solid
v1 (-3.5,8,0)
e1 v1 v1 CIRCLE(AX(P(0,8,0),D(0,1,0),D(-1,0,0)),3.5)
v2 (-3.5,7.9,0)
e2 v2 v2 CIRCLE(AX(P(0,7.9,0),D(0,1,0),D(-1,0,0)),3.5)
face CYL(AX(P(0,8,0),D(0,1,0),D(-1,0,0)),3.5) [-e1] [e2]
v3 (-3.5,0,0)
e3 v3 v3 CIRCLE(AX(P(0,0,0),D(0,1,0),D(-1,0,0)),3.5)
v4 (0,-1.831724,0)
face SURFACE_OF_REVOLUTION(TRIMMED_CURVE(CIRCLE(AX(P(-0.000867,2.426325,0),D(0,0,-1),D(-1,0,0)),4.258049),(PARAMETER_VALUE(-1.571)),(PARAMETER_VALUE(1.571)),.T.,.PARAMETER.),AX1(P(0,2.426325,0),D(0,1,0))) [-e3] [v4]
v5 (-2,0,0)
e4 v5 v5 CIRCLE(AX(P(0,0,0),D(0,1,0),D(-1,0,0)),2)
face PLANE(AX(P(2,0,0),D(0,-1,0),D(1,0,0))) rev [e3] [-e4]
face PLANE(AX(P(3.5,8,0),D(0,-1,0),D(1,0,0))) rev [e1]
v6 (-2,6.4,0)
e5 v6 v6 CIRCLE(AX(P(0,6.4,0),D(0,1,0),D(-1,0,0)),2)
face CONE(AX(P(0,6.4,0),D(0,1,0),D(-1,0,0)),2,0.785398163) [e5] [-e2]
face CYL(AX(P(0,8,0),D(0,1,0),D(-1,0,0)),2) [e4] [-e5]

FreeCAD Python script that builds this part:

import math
import FreeCAD as App
import Part
import Sketcher
Q = App.Units.Quantity

doc = App.newDocument("Part")
params = doc.addObject("Spreadsheet::Sheet", "Params")
for row, (alias, value) in enumerate([
    ("sketch1_width", "1.5 mm"),
    ("sketch1_width2", "3.5 mm"),
    ("sketch1_height", "6.4 mm"),
    ("sketch1_height2", "0.1 mm"),
    ("revolution_angle", "360 deg"),
], start=1):
    params.set(f"A{row}", alias)
    params.set(f"B{row}", "=" + value)
    params.setAlias(f"B{row}", alias)

body = doc.addObject("PartDesign::Body", "Body")

sketch1 = body.newObject("Sketcher::SketchObject", "Sketch")
sketch1.AttachmentSupport = (doc.getObject("XY_Plane"), [""])
sketch1.MapMode = "FlatFace"
sketch1.addGeometry(Part.LineSegment(App.Vector(3.5, 0, 0), App.Vector(2, 0, 0)), False)
sketch1.addGeometry(Part.LineSegment(App.Vector(2, 0, 0), App.Vector(2, 6.4, 0)), False)
sketch1.addGeometry(Part.LineSegment(App.Vector(2, 6.4, 0), App.Vector(3.5, 7.9, 0)), False)
sketch1.addGeometry(Part.LineSegment(App.Vector(3.5, 7.9, 0), App.Vector(3.5, 8, 0)), False)
sketch1.addGeometry(Part.LineSegment(App.Vector(3.5, 8, 0), App.Vector(0, 8, 0)), False)
sketch1.addGeometry(Part.LineSegment(App.Vector(0, 8, 0), App.Vector(0, -1.83, 0)), False)
sketch1.addGeometry(Part.ArcOfCircle(Part.Circle(App.Vector(0, 2.43, 0), App.Vector(0, 0, 1), 4.26), math.radians(-90), math.radians(-35)), False)
sketch1.addConstraint(Sketcher.Constraint("Coincident", 0, 2, 1, 1))
sketch1.addConstraint(Sketcher.Constraint("Coincident", 1, 2, 2, 1))
sketch1.addConstraint(Sketcher.Constraint("Coincident", 2, 2, 3, 1))
sketch1.addConstraint(Sketcher.Constraint("Coincident", 3, 2, 4, 1))
sketch1.addConstraint(Sketcher.Constraint("Coincident", 4, 2, 5, 1))
sketch1.addConstraint(Sketcher.Constraint("Coincident", 5, 2, 6, 1))
sketch1.addConstraint(Sketcher.Constraint("Coincident", 6, 2, 0, 1))
sketch1.addConstraint(Sketcher.Constraint("Horizontal", 0))
sketch1.addConstraint(Sketcher.Constraint("Vertical", 1))
sketch1.addConstraint(Sketcher.Constraint("Vertical", 3))
sketch1.addConstraint(Sketcher.Constraint("Horizontal", 4))
sketch1.addConstraint(Sketcher.Constraint("Vertical", 5))
sketch1.addConstraint(Sketcher.Constraint("PointOnObject", 0, 2, -1))
sketch1.addConstraint(Sketcher.Constraint("PointOnObject", 4, 2, -2))
sketch1.addConstraint(Sketcher.Constraint("Vertical", 3, 2, 6, 2))
sketch1.addConstraint(Sketcher.Constraint("Angle", 2, Q("45 deg")))
sketch1.addConstraint(Sketcher.Constraint("DistanceX", 0, 2, 0, 1, 1.5))
sketch1.addConstraint(Sketcher.Constraint("DistanceX", 4, 2, 4, 1, 3.5))
sketch1.addConstraint(Sketcher.Constraint("DistanceY", 1, 1, 1, 2, 6.4))
sketch1.addConstraint(Sketcher.Constraint("DistanceY", 3, 1, 3, 2, 0.1))
sketch1.addConstraint(Sketcher.Constraint("Radius", 6, 4.258049))
sketch1.addConstraint(Sketcher.Constraint("DistanceY", 5, 2, 5, 1, 9.831724))
sketch1.setExpression("Constraints[16]", "Params.sketch1_width")
sketch1.setExpression("Constraints[17]", "Params.sketch1_width2")
sketch1.setExpression("Constraints[18]", "Params.sketch1_height")
sketch1.setExpression("Constraints[19]", "Params.sketch1_height2")
revolution = body.newObject("PartDesign::Revolution", "Revolution")
revolution.Profile = sketch1
revolution.ReferenceAxis = (sketch1, ["V_Axis"])
revolution.setExpression("Angle", "Params.revolution_angle")

doc.recompute()
